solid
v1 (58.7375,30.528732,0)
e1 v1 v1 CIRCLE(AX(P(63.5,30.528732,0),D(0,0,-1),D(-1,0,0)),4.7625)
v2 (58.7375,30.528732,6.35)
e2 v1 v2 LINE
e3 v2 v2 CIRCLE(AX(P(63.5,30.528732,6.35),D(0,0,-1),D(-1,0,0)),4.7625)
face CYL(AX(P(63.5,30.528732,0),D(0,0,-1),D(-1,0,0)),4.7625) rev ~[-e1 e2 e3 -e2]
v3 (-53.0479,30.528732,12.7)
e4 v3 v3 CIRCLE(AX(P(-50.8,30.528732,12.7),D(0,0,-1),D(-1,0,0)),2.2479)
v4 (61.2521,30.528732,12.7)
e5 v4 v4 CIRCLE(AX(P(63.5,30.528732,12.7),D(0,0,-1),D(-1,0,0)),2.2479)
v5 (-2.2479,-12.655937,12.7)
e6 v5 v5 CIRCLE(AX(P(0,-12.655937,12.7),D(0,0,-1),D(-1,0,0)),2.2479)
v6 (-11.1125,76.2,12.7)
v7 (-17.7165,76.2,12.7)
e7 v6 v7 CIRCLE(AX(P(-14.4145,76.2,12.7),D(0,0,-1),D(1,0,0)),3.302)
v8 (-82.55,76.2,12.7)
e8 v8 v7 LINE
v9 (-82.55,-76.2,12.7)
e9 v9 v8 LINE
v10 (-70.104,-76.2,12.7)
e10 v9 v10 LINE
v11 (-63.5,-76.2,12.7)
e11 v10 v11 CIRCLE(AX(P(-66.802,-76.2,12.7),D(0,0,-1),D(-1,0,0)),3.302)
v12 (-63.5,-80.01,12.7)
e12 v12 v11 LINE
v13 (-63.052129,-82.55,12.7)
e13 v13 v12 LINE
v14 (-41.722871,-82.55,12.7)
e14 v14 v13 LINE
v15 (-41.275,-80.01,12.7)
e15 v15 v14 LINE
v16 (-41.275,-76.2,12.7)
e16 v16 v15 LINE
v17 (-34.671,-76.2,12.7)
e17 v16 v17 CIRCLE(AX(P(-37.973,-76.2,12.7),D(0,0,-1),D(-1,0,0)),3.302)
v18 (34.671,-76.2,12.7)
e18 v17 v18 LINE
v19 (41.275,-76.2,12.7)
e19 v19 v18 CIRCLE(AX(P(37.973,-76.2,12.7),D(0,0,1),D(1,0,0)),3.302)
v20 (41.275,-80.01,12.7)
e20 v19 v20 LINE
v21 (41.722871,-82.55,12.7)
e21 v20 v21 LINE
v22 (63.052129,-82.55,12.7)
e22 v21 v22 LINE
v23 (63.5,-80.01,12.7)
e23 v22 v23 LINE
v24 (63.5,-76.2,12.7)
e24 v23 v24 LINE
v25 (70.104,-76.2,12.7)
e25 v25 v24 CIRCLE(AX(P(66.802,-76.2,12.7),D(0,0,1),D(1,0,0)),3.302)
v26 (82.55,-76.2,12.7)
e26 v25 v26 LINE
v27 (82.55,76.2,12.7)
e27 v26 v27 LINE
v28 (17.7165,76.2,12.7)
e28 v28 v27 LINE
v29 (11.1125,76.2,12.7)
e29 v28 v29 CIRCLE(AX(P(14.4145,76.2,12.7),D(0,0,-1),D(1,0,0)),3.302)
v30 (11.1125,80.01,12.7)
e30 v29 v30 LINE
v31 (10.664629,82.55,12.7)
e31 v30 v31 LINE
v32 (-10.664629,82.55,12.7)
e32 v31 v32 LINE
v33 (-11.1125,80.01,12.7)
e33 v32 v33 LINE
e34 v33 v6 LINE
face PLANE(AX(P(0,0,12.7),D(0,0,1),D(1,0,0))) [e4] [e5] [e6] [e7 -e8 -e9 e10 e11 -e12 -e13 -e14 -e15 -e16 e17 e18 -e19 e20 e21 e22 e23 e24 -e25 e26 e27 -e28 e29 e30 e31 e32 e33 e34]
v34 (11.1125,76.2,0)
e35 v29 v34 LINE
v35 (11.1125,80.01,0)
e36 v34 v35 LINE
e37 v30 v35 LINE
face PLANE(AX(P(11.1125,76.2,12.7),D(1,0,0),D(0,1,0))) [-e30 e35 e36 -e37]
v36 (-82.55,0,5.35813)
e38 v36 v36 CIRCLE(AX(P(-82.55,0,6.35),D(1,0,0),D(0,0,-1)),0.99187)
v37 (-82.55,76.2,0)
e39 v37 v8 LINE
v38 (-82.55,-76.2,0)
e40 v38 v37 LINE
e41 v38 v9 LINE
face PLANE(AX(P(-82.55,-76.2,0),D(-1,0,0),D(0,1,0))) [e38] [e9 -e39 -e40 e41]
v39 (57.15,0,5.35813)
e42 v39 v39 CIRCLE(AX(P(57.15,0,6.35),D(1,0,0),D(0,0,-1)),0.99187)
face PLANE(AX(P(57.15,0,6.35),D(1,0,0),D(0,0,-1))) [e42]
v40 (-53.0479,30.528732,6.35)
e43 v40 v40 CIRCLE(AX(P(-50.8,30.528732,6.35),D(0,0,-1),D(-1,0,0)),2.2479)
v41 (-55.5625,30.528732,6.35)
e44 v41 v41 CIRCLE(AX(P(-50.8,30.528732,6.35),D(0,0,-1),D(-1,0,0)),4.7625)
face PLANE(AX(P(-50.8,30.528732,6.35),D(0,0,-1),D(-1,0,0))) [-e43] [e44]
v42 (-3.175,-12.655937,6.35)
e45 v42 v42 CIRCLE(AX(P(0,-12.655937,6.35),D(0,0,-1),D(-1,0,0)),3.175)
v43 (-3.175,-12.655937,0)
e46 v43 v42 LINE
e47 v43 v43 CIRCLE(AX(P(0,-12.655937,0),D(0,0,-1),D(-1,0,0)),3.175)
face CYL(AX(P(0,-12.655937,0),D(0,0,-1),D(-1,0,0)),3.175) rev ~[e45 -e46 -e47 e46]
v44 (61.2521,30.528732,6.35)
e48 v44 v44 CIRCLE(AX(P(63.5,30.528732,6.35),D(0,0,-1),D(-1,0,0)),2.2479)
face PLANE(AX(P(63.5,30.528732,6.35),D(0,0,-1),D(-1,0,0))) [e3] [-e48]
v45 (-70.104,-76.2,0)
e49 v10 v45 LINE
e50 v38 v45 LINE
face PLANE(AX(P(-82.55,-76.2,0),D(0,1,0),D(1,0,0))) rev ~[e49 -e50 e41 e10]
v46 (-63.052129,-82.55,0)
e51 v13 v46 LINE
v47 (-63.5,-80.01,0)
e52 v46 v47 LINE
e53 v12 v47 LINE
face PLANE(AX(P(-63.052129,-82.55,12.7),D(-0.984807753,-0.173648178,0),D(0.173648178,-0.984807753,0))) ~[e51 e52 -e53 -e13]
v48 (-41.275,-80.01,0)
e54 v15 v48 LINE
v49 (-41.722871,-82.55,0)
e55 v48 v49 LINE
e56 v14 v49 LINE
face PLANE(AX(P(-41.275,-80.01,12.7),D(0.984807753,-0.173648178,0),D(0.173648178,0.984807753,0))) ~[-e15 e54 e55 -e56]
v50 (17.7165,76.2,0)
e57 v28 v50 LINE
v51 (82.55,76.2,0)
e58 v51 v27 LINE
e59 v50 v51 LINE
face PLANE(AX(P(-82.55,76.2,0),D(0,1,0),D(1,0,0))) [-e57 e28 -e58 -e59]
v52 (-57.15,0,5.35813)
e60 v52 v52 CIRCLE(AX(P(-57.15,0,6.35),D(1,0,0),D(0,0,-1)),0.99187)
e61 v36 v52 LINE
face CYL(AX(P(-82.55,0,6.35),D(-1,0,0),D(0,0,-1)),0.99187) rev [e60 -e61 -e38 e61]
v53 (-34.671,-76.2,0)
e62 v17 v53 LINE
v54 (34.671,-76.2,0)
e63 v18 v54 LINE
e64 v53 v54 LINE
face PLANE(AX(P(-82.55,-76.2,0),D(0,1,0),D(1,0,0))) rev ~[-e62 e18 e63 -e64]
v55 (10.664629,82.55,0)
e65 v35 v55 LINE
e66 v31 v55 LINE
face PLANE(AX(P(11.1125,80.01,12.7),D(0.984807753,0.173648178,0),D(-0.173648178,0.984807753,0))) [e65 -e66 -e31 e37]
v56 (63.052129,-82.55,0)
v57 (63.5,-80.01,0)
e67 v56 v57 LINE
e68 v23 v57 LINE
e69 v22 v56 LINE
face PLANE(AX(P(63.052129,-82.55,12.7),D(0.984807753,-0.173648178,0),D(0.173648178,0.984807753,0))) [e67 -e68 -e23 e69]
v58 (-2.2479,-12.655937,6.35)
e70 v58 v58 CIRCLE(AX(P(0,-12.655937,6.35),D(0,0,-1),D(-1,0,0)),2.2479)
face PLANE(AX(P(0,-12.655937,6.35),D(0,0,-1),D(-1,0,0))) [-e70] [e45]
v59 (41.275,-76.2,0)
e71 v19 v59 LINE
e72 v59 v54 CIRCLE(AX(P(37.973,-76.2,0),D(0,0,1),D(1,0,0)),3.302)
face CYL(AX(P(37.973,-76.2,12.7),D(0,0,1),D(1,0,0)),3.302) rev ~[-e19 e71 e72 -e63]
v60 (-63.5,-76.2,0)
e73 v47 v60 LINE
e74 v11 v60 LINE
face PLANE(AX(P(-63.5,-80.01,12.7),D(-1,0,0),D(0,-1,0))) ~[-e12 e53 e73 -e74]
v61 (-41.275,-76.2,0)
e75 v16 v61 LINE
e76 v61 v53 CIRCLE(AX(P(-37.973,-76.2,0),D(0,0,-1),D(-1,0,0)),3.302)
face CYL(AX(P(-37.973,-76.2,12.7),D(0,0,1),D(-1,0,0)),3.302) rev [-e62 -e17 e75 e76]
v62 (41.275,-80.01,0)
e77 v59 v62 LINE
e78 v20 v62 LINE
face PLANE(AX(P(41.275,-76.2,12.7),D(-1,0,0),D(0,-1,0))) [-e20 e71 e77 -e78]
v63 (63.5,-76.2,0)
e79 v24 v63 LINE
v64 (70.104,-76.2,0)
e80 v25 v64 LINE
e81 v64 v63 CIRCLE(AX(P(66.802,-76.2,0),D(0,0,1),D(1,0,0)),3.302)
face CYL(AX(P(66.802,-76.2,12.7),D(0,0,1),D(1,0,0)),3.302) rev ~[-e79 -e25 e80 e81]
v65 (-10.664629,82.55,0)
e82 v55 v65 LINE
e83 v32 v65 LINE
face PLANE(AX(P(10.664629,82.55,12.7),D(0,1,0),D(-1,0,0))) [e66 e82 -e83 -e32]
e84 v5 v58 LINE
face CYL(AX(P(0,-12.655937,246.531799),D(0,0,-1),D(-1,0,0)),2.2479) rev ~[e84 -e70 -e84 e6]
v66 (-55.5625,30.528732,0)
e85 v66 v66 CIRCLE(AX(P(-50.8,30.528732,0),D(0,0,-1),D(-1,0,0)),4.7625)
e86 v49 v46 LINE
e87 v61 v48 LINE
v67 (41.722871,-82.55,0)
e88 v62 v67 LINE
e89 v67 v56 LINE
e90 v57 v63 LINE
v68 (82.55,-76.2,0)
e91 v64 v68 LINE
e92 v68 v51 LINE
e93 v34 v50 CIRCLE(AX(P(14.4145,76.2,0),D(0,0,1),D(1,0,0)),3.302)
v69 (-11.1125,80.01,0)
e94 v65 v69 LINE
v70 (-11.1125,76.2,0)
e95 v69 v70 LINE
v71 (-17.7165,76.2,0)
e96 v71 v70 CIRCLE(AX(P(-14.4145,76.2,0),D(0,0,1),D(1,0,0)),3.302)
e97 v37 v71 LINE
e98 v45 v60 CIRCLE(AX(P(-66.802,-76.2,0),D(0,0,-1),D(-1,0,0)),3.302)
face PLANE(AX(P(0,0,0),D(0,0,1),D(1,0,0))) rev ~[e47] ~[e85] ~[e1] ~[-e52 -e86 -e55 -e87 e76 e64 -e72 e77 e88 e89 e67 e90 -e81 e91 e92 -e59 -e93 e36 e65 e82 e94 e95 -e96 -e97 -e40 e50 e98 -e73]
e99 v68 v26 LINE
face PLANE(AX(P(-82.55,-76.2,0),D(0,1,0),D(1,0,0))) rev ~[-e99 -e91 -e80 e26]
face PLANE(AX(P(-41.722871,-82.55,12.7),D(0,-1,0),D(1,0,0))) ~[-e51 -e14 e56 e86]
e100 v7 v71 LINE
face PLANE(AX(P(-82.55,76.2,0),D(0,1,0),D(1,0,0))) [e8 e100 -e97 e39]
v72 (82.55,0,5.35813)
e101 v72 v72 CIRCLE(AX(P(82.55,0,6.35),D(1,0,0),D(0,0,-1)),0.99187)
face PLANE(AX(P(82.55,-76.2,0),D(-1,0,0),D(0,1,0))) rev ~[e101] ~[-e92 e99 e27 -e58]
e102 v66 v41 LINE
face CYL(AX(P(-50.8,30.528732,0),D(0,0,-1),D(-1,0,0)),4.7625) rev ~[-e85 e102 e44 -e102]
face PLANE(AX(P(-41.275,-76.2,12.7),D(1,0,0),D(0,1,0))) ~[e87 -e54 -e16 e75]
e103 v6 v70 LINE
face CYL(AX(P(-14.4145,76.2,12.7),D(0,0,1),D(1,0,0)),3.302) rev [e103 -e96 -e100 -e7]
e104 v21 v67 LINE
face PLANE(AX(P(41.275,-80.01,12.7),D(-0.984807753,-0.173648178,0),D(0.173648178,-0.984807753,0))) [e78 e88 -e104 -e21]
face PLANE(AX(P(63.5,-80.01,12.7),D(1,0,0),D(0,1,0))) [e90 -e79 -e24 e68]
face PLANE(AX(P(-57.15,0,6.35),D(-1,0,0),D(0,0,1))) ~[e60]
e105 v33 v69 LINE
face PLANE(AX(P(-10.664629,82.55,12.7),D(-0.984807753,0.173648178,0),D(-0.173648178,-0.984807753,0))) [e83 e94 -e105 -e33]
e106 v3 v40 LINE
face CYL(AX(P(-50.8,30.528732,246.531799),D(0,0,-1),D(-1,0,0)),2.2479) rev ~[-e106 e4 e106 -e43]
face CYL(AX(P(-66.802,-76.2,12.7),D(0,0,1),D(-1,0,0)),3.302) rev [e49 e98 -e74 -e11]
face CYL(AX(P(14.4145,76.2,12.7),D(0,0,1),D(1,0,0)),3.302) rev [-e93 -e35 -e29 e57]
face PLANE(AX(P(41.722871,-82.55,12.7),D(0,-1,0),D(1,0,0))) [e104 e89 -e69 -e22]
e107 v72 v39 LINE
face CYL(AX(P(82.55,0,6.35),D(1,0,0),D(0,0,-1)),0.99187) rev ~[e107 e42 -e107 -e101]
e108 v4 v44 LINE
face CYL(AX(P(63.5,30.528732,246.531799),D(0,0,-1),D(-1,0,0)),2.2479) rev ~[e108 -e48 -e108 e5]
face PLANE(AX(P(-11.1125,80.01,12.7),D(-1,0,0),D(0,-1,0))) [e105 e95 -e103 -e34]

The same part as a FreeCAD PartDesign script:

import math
import FreeCAD as App
import Part
import Sketcher
from FreeCAD import Vector
Q = App.Units.Quantity

doc = App.newDocument("Part")
body = doc.addObject("PartDesign::Body", "Body")

# Sketch on XY plane
sketch1 = body.newObject("Sketcher::SketchObject", "Sketch")
sketch1.AttachmentSupport = (doc.getObject("XY_Plane"), [""])
sketch1.MapMode = "FlatFace"
sketch1.addGeometry([
    Part.LineSegment(Vector(-83, 76, 0), Vector(-83, -76, 0)),
    Part.LineSegment(Vector(-83, -76, 0), Vector(83, -76, 0)),
    Part.LineSegment(Vector(83, -76, 0), Vector(83, 76, 0)),
    Part.LineSegment(Vector(83, 76, 0), Vector(-83, 76, 0)),
], False)
sketch1.addConstraint([
    Sketcher.Constraint("Coincident", 0, 2, 1, 1),
    Sketcher.Constraint("Coincident", 1, 2, 2, 1),
    Sketcher.Constraint("Coincident", 2, 2, 3, 1),
    Sketcher.Constraint("Coincident", 3, 2, 0, 1),
    Sketcher.Constraint("Vertical", 0),
    Sketcher.Constraint("Horizontal", 1),
    Sketcher.Constraint("Vertical", 2),
    Sketcher.Constraint("Horizontal", 3),
    Sketcher.Constraint("Symmetric", 0, 2, 2, 2, -1, 1),
    Sketcher.Constraint("DistanceY", 0, 2, 0, 1, Q("6 in")),
    Sketcher.Constraint("DistanceX", 1, 1, 1, 2, Q("6.5 in")),
])
pad1 = body.newObject("PartDesign::Pad", "Pad")
pad1.Profile = sketch1
pad1.Length = Q("0.5 in")

# Sketch on XY plane
sketch2 = body.newObject("Sketcher::SketchObject", "Sketch001")
sketch2.AttachmentSupport = (doc.getObject("XY_Plane"), [""])
sketch2.MapMode = "FlatFace"
sketch2.AttachmentOffset = App.Placement(Vector(0, 0, 0.5 * 25.4), App.Rotation())
sketch2.addGeometry([
    Part.LineSegment(Vector(-11.1, 76.2, 0), Vector(11.1, 76.2, 0)),  # 0
    Part.LineSegment(Vector(11.1, 76.2, 0), Vector(11.1, 80, 0)),  # 1
    Part.LineSegment(Vector(11.1, 80, 0), Vector(10.7, 82.5, 0)),  # 2
    Part.LineSegment(Vector(10.7, 82.5, 0), Vector(-10.7, 82.5, 0)),  # 3
    Part.LineSegment(Vector(-10.7, 82.5, 0), Vector(-11.1, 80, 0)),  # 4
    Part.LineSegment(Vector(-11.1, 80, 0), Vector(-11.1, 76.2, 0)),  # 5
], False)
sketch2.addConstraint([
    Sketcher.Constraint("Coincident", 0, 2, 1, 1),
    Sketcher.Constraint("Coincident", 1, 2, 2, 1),
    Sketcher.Constraint("Coincident", 2, 2, 3, 1),
    Sketcher.Constraint("Coincident", 3, 2, 4, 1),
    Sketcher.Constraint("Coincident", 4, 2, 5, 1),
    Sketcher.Constraint("Coincident", 5, 2, 0, 1),
    Sketcher.Constraint("Horizontal", 0),
    Sketcher.Constraint("Vertical", 1),
    Sketcher.Constraint("Horizontal", 3),
    Sketcher.Constraint("Vertical", 5),
    Sketcher.Constraint("Symmetric", 1, 2, 4, 2, -2),
    Sketcher.Constraint("Equal", 2, 4),
    Sketcher.Constraint("DistanceY", -1, 1, 0, 2, Q("3 in")),
    Sketcher.Constraint("Angle", 2, Q("100 deg")),
    Sketcher.Constraint("DistanceY", 1, 1, 1, 2, Q("0.15 in")),
    Sketcher.Constraint("DistanceY", 1, 2, 2, 2, Q("0.1 in")),
    Sketcher.Constraint("DistanceX", 0, 1, 0, 2, Q("0.875 in")),
])
pad2 = body.newObject("PartDesign::Pad", "Pad001")
pad2.Profile = sketch2
pad2.Length = Q("0.5 in")
pad2.Reversed = True

# Sketch on XY plane
sketch3 = body.newObject("Sketcher::SketchObject", "Sketch002")
sketch3.AttachmentSupport = (doc.getObject("XY_Plane"), [""])
sketch3.MapMode = "FlatFace"
sketch3.AttachmentOffset = App.Placement(Vector(0, 0, 0.5 * 25.4), App.Rotation())
sketch3.addGeometry([
    Part.LineSegment(Vector(-11.1, 76.2, 0), Vector(-17.7, 76.2, 0)),
    Part.ArcOfCircle(Part.Circle(Vector(-14.4, 76.2, 0), Vector(0, 0, 1), 3.3), math.radians(180), math.radians(360)),
], False)
sketch3.addConstraint([
    Sketcher.Constraint("Coincident", 0, 1, 1, 2),
    Sketcher.Constraint("Coincident", 1, 1, 0, 2),
    Sketcher.Constraint("Horizontal", 0),
    Sketcher.Constraint("Horizontal", 1, 3, 0, 1),
    Sketcher.Constraint("Radius", 1, Q("0.13 in")),
    Sketcher.Constraint("DistanceY", -1, 1, 1, 3, Q("3 in")),
    Sketcher.Constraint("DistanceX", 0, 1, -1, 1, Q("0.4375 in")),
])
pocket1 = body.newObject("PartDesign::Pocket", "Pocket")
pocket1.Profile = sketch3
pocket1.Type = "UpToFirst"

# Sketch on XY plane
sketch4 = body.newObject("Sketcher::SketchObject", "Sketch003")
sketch4.AttachmentSupport = (doc.getObject("XY_Plane"), [""])
sketch4.MapMode = "FlatFace"
sketch4.AttachmentOffset = App.Placement(Vector(0, 0, 0.5 * 25.4), App.Rotation())
sketch4.addGeometry([
    Part.LineSegment(Vector(17.7, 76.2, 0), Vector(11.1, 76.2, 0)),
    Part.ArcOfCircle(Part.Circle(Vector(14.4, 76.2, 0), Vector(0, 0, 1), 3.3), math.radians(180), math.radians(360)),
], False)
sketch4.addConstraint([
    Sketcher.Constraint("Coincident", 0, 1, 1, 2),
    Sketcher.Constraint("Coincident", 1, 1, 0, 2),
    Sketcher.Constraint("Horizontal", 0),
    Sketcher.Constraint("Horizontal", 1, 3, 0, 1),
    Sketcher.Constraint("Radius", 1, Q("0.13 in")),
    Sketcher.Constraint("DistanceY", -1, 1, 1, 3, Q("3 in")),
    Sketcher.Constraint("DistanceX", -1, 1, 1, 1, Q("0.4375 in")),
])
pocket2 = body.newObject("PartDesign::Pocket", "Pocket001")
pocket2.Profile = sketch4
pocket2.Type = "UpToFirst"

# Sketch on XY plane
sketch5 = body.newObject("Sketcher::SketchObject", "Sketch004")
sketch5.AttachmentSupport = (doc.getObject("XY_Plane"), [""])
sketch5.MapMode = "FlatFace"
sketch5.AttachmentOffset = App.Placement(Vector(0, 0, 0.5 * 25.4), App.Rotation())
sketch5.addGeometry([
    Part.LineSegment(Vector(63.5, -76.2, 0), Vector(41.3, -76.2, 0)),  # 0
    Part.LineSegment(Vector(41.3, -76.2, 0), Vector(41.3, -80, 0)),  # 1
    Part.LineSegment(Vector(41.3, -80, 0), Vector(41.7, -82.5, 0)),  # 2
    Part.LineSegment(Vector(41.7, -82.5, 0), Vector(63.1, -82.5, 0)),  # 3
    Part.LineSegment(Vector(63.1, -82.5, 0), Vector(63.5, -80, 0)),  # 4
    Part.LineSegment(Vector(63.5, -80, 0), Vector(63.5, -76.2, 0)),  # 5
], False)
sketch5.addConstraint([
    Sketcher.Constraint("Coincident", 0, 2, 1, 1),
    Sketcher.Constraint("Coincident", 1, 2, 2, 1),
    Sketcher.Constraint("Coincident", 2, 2, 3, 1),
    Sketcher.Constraint("Coincident", 3, 2, 4, 1),
    Sketcher.Constraint("Coincident", 4, 2, 5, 1),
    Sketcher.Constraint("Coincident", 5, 2, 0, 1),
    Sketcher.Constraint("Horizontal", 0),
    Sketcher.Constraint("Vertical", 1),
    Sketcher.Constraint("Horizontal", 3),
    Sketcher.Constraint("Vertical", 5),
    Sketcher.Constraint("Horizontal", 1, 2, 4, 2),
    Sketcher.Constraint("Equal", 2, 4),
    Sketcher.Constraint("DistanceY", 0, 2, -1, 1, Q("3 in")),
    Sketcher.Constraint("Angle", 2, Q("-80 deg")),
    Sketcher.Constraint("DistanceY", 1, 2, 1, 1, Q("0.15 in")),
    Sketcher.Constraint("DistanceX", -1, 1, 4, 2, Q("2.5 in")),
    Sketcher.Constraint("DistanceY", 2, 2, 1, 2, Q("0.1 in")),
    Sketcher.Constraint("DistanceX", 0, 2, 0, 1, Q("0.875 in")),
])
pad3 = body.newObject("PartDesign::Pad", "Pad002")
pad3.Profile = sketch5
pad3.Length = Q("0.5 in")
pad3.Reversed = True

# Sketch on XY plane
sketch6 = body.newObject("Sketcher::SketchObject", "Sketch005")
sketch6.AttachmentSupport = (doc.getObject("XY_Plane"), [""])
sketch6.MapMode = "FlatFace"
sketch6.AttachmentOffset = App.Placement(Vector(0, 0, 0.5 * 25.4), App.Rotation())
sketch6.addGeometry([
    Part.LineSegment(Vector(34.7, -76.2, 0), Vector(41.3, -76.2, 0)),
    Part.ArcOfCircle(Part.Circle(Vector(38, -76.2, 0), Vector(0, 0, 1), 3.3), math.radians(0), math.radians(180)),
    Part.LineSegment(Vector(63.5, -76.2, 0), Vector(70.1, -76.2, 0)),
    Part.ArcOfCircle(Part.Circle(Vector(66.8, -76.2, 0), Vector(0, 0, 1), 3.3), math.radians(0), math.radians(180)),
], False)
sketch6.addConstraint([
    Sketcher.Constraint("Coincident", 0, 1, 1, 2),
    Sketcher.Constraint("Coincident", 1, 1, 0, 2),
    Sketcher.Constraint("Coincident", 2, 1, 3, 2),
    Sketcher.Constraint("Coincident", 3, 1, 2, 2),
    Sketcher.Constraint("Horizontal", 0),
    Sketcher.Constraint("Horizontal", 2),
    Sketcher.Constraint("Equal", 1, 3),
    Sketcher.Constraint("Horizontal", 1, 3, 3, 3),
    Sketcher.Constraint("Horizontal", 3, 3, 0, 1),
    Sketcher.Constraint("Horizontal", 1, 1, 2, 1),
    Sketcher.Constraint("Radius", 1, Q("0.13 in")),
    Sketcher.Constraint("DistanceY", 1, 3, -1, 1, Q("3 in")),
    Sketcher.Constraint("DistanceX", -1, 1, 2, 1, Q("2.5 in")),
    Sketcher.Constraint("DistanceX", -1, 1, 1, 3, Q("1.495 in")),
])
pocket3 = body.newObject("PartDesign::Pocket", "Pocket002")
pocket3.Profile = sketch6
pocket3.Length = Q("0.5 in")
doc.recompute()

mirrored = body.newObject("PartDesign::Mirrored", "Mirrored")
mirrored.Originals = [pad3, pocket3]
mirrored.MirrorPlane = (doc.getObject("YZ_Plane"), [""])
body.Tip = mirrored

# Sketch on XY plane
sketch7 = body.newObject("Sketcher::SketchObject", "Sketch006")
sketch7.AttachmentSupport = (doc.getObject("XY_Plane"), [""])
sketch7.MapMode = "FlatFace"
sketch7.AttachmentOffset = App.Placement(Vector(0, 0, 0.5 * 25.4), App.Rotation())
sketch7.addGeometry([
    Part.Circle(Vector(0, -12.7, 0), Vector(0, 0, 1), 2.2),
    Part.Circle(Vector(63.5, 30.5, 0), Vector(0, 0, 1), 2.2),
    Part.Circle(Vector(-50.8, 30.5, 0), Vector(0, 0, 1), 2.2),
], False)
sketch7.addConstraint([
    Sketcher.Constraint("Equal", 0, 1),
    Sketcher.Constraint("Equal", 1, 2),
    Sketcher.Constraint("PointOnObject", 0, 3, -2),
    Sketcher.Constraint("Horizontal", 1, 3, 2, 3),
    Sketcher.Constraint("Diameter", 0, Q("0.177 in")),
    Sketcher.Constraint("DistanceX", 2, 3, -1, 1, Q("2 in")),
    Sketcher.Constraint("DistanceX", -1, 1, 1, 3, Q("2.5 in")),
    Sketcher.Constraint("DistanceY", 0, 3, 1, 3, Q("43.184669 mm")),
    Sketcher.Constraint("DistanceY", 0, 3, -1, 1, Q("12.655937 mm")),
])
doc.recompute()
hole = body.newObject("PartDesign::Hole", "Hole")
hole.Profile = sketch7
hole.ThreadType = "None"
hole.Diameter = Q("0.177 in")
hole.DepthType = "ThroughAll"

# Sketch on YZ plane
sketch8 = body.newObject("Sketcher::SketchObject", "Sketch007")
sketch8.AttachmentSupport = (doc.getObject("YZ_Plane"), [""])
sketch8.MapMode = "FlatFace"
sketch8.AttachmentOffset = App.Placement(Vector(0, 0, 3.25 * 25.4), App.Rotation())
sketch8.addGeometry(Part.Circle(Vector(0, 6.3, 0), Vector(0, 0, 1), 1), False)
sketch8.addConstraint([
    Sketcher.Constraint("PointOnObject", 0, 3, -2),
    Sketcher.Constraint("Diameter", 0, Q("0.0781 in")),
    Sketcher.Constraint("DistanceY", -1, 1, 0, 3, Q("0.25 in")),
])
pocket4 = body.newObject("PartDesign::Pocket", "Pocket003")
pocket4.Profile = sketch8
pocket4.Length = Q("1 in")
doc.recompute()

mirrored2 = body.newObject("PartDesign::Mirrored", "Mirrored001")
mirrored2.Originals = [pocket4]
mirrored2.MirrorPlane = (doc.getObject("YZ_Plane"), [""])
body.Tip = mirrored2

# Sketch on XY plane
sketch9 = body.newObject("Sketcher::SketchObject", "Sketch008")
sketch9.AttachmentSupport = (doc.getObject("XY_Plane"), [""])
sketch9.MapMode = "FlatFace"
sketch9.addGeometry([
    Part.Circle(Vector(0, -12.7, 0), Vector(0, 0, 1), 3.2),
    Part.Circle(Vector(63.5, 30.5, 0), Vector(0, 0, 1), 4.8),
    Part.Circle(Vector(-50.8, 30.5, 0), Vector(0, 0, 1), 4.8),
], False)
sketch9.addConstraint([
    Sketcher.Constraint("Equal", 1, 2),
    Sketcher.Constraint("PointOnObject", 0, 3, -2),
    Sketcher.Constraint("Horizontal", 1, 3, 2, 3),
    Sketcher.Constraint("Diameter", 0, Q("0.25 in")),
    Sketcher.Constraint("Diameter", 1, Q("0.375 in")),
    Sketcher.Constraint("DistanceX", 2, 3, -1, 1, Q("2 in")),
    Sketcher.Constraint("DistanceX", -1, 1, 1, 3, Q("2.5 in")),
    Sketcher.Constraint("DistanceY", 0, 3, 1, 3, Q("43.184669 mm")),
    Sketcher.Constraint("DistanceY", 0, 3, -1, 1, Q("12.655937 mm")),
])
pocket5 = body.newObject("PartDesign::Pocket", "Pocket004")
pocket5.Profile = sketch9
pocket5.Length = Q("0.25 in")
pocket5.Reversed = True

doc.recompute()
